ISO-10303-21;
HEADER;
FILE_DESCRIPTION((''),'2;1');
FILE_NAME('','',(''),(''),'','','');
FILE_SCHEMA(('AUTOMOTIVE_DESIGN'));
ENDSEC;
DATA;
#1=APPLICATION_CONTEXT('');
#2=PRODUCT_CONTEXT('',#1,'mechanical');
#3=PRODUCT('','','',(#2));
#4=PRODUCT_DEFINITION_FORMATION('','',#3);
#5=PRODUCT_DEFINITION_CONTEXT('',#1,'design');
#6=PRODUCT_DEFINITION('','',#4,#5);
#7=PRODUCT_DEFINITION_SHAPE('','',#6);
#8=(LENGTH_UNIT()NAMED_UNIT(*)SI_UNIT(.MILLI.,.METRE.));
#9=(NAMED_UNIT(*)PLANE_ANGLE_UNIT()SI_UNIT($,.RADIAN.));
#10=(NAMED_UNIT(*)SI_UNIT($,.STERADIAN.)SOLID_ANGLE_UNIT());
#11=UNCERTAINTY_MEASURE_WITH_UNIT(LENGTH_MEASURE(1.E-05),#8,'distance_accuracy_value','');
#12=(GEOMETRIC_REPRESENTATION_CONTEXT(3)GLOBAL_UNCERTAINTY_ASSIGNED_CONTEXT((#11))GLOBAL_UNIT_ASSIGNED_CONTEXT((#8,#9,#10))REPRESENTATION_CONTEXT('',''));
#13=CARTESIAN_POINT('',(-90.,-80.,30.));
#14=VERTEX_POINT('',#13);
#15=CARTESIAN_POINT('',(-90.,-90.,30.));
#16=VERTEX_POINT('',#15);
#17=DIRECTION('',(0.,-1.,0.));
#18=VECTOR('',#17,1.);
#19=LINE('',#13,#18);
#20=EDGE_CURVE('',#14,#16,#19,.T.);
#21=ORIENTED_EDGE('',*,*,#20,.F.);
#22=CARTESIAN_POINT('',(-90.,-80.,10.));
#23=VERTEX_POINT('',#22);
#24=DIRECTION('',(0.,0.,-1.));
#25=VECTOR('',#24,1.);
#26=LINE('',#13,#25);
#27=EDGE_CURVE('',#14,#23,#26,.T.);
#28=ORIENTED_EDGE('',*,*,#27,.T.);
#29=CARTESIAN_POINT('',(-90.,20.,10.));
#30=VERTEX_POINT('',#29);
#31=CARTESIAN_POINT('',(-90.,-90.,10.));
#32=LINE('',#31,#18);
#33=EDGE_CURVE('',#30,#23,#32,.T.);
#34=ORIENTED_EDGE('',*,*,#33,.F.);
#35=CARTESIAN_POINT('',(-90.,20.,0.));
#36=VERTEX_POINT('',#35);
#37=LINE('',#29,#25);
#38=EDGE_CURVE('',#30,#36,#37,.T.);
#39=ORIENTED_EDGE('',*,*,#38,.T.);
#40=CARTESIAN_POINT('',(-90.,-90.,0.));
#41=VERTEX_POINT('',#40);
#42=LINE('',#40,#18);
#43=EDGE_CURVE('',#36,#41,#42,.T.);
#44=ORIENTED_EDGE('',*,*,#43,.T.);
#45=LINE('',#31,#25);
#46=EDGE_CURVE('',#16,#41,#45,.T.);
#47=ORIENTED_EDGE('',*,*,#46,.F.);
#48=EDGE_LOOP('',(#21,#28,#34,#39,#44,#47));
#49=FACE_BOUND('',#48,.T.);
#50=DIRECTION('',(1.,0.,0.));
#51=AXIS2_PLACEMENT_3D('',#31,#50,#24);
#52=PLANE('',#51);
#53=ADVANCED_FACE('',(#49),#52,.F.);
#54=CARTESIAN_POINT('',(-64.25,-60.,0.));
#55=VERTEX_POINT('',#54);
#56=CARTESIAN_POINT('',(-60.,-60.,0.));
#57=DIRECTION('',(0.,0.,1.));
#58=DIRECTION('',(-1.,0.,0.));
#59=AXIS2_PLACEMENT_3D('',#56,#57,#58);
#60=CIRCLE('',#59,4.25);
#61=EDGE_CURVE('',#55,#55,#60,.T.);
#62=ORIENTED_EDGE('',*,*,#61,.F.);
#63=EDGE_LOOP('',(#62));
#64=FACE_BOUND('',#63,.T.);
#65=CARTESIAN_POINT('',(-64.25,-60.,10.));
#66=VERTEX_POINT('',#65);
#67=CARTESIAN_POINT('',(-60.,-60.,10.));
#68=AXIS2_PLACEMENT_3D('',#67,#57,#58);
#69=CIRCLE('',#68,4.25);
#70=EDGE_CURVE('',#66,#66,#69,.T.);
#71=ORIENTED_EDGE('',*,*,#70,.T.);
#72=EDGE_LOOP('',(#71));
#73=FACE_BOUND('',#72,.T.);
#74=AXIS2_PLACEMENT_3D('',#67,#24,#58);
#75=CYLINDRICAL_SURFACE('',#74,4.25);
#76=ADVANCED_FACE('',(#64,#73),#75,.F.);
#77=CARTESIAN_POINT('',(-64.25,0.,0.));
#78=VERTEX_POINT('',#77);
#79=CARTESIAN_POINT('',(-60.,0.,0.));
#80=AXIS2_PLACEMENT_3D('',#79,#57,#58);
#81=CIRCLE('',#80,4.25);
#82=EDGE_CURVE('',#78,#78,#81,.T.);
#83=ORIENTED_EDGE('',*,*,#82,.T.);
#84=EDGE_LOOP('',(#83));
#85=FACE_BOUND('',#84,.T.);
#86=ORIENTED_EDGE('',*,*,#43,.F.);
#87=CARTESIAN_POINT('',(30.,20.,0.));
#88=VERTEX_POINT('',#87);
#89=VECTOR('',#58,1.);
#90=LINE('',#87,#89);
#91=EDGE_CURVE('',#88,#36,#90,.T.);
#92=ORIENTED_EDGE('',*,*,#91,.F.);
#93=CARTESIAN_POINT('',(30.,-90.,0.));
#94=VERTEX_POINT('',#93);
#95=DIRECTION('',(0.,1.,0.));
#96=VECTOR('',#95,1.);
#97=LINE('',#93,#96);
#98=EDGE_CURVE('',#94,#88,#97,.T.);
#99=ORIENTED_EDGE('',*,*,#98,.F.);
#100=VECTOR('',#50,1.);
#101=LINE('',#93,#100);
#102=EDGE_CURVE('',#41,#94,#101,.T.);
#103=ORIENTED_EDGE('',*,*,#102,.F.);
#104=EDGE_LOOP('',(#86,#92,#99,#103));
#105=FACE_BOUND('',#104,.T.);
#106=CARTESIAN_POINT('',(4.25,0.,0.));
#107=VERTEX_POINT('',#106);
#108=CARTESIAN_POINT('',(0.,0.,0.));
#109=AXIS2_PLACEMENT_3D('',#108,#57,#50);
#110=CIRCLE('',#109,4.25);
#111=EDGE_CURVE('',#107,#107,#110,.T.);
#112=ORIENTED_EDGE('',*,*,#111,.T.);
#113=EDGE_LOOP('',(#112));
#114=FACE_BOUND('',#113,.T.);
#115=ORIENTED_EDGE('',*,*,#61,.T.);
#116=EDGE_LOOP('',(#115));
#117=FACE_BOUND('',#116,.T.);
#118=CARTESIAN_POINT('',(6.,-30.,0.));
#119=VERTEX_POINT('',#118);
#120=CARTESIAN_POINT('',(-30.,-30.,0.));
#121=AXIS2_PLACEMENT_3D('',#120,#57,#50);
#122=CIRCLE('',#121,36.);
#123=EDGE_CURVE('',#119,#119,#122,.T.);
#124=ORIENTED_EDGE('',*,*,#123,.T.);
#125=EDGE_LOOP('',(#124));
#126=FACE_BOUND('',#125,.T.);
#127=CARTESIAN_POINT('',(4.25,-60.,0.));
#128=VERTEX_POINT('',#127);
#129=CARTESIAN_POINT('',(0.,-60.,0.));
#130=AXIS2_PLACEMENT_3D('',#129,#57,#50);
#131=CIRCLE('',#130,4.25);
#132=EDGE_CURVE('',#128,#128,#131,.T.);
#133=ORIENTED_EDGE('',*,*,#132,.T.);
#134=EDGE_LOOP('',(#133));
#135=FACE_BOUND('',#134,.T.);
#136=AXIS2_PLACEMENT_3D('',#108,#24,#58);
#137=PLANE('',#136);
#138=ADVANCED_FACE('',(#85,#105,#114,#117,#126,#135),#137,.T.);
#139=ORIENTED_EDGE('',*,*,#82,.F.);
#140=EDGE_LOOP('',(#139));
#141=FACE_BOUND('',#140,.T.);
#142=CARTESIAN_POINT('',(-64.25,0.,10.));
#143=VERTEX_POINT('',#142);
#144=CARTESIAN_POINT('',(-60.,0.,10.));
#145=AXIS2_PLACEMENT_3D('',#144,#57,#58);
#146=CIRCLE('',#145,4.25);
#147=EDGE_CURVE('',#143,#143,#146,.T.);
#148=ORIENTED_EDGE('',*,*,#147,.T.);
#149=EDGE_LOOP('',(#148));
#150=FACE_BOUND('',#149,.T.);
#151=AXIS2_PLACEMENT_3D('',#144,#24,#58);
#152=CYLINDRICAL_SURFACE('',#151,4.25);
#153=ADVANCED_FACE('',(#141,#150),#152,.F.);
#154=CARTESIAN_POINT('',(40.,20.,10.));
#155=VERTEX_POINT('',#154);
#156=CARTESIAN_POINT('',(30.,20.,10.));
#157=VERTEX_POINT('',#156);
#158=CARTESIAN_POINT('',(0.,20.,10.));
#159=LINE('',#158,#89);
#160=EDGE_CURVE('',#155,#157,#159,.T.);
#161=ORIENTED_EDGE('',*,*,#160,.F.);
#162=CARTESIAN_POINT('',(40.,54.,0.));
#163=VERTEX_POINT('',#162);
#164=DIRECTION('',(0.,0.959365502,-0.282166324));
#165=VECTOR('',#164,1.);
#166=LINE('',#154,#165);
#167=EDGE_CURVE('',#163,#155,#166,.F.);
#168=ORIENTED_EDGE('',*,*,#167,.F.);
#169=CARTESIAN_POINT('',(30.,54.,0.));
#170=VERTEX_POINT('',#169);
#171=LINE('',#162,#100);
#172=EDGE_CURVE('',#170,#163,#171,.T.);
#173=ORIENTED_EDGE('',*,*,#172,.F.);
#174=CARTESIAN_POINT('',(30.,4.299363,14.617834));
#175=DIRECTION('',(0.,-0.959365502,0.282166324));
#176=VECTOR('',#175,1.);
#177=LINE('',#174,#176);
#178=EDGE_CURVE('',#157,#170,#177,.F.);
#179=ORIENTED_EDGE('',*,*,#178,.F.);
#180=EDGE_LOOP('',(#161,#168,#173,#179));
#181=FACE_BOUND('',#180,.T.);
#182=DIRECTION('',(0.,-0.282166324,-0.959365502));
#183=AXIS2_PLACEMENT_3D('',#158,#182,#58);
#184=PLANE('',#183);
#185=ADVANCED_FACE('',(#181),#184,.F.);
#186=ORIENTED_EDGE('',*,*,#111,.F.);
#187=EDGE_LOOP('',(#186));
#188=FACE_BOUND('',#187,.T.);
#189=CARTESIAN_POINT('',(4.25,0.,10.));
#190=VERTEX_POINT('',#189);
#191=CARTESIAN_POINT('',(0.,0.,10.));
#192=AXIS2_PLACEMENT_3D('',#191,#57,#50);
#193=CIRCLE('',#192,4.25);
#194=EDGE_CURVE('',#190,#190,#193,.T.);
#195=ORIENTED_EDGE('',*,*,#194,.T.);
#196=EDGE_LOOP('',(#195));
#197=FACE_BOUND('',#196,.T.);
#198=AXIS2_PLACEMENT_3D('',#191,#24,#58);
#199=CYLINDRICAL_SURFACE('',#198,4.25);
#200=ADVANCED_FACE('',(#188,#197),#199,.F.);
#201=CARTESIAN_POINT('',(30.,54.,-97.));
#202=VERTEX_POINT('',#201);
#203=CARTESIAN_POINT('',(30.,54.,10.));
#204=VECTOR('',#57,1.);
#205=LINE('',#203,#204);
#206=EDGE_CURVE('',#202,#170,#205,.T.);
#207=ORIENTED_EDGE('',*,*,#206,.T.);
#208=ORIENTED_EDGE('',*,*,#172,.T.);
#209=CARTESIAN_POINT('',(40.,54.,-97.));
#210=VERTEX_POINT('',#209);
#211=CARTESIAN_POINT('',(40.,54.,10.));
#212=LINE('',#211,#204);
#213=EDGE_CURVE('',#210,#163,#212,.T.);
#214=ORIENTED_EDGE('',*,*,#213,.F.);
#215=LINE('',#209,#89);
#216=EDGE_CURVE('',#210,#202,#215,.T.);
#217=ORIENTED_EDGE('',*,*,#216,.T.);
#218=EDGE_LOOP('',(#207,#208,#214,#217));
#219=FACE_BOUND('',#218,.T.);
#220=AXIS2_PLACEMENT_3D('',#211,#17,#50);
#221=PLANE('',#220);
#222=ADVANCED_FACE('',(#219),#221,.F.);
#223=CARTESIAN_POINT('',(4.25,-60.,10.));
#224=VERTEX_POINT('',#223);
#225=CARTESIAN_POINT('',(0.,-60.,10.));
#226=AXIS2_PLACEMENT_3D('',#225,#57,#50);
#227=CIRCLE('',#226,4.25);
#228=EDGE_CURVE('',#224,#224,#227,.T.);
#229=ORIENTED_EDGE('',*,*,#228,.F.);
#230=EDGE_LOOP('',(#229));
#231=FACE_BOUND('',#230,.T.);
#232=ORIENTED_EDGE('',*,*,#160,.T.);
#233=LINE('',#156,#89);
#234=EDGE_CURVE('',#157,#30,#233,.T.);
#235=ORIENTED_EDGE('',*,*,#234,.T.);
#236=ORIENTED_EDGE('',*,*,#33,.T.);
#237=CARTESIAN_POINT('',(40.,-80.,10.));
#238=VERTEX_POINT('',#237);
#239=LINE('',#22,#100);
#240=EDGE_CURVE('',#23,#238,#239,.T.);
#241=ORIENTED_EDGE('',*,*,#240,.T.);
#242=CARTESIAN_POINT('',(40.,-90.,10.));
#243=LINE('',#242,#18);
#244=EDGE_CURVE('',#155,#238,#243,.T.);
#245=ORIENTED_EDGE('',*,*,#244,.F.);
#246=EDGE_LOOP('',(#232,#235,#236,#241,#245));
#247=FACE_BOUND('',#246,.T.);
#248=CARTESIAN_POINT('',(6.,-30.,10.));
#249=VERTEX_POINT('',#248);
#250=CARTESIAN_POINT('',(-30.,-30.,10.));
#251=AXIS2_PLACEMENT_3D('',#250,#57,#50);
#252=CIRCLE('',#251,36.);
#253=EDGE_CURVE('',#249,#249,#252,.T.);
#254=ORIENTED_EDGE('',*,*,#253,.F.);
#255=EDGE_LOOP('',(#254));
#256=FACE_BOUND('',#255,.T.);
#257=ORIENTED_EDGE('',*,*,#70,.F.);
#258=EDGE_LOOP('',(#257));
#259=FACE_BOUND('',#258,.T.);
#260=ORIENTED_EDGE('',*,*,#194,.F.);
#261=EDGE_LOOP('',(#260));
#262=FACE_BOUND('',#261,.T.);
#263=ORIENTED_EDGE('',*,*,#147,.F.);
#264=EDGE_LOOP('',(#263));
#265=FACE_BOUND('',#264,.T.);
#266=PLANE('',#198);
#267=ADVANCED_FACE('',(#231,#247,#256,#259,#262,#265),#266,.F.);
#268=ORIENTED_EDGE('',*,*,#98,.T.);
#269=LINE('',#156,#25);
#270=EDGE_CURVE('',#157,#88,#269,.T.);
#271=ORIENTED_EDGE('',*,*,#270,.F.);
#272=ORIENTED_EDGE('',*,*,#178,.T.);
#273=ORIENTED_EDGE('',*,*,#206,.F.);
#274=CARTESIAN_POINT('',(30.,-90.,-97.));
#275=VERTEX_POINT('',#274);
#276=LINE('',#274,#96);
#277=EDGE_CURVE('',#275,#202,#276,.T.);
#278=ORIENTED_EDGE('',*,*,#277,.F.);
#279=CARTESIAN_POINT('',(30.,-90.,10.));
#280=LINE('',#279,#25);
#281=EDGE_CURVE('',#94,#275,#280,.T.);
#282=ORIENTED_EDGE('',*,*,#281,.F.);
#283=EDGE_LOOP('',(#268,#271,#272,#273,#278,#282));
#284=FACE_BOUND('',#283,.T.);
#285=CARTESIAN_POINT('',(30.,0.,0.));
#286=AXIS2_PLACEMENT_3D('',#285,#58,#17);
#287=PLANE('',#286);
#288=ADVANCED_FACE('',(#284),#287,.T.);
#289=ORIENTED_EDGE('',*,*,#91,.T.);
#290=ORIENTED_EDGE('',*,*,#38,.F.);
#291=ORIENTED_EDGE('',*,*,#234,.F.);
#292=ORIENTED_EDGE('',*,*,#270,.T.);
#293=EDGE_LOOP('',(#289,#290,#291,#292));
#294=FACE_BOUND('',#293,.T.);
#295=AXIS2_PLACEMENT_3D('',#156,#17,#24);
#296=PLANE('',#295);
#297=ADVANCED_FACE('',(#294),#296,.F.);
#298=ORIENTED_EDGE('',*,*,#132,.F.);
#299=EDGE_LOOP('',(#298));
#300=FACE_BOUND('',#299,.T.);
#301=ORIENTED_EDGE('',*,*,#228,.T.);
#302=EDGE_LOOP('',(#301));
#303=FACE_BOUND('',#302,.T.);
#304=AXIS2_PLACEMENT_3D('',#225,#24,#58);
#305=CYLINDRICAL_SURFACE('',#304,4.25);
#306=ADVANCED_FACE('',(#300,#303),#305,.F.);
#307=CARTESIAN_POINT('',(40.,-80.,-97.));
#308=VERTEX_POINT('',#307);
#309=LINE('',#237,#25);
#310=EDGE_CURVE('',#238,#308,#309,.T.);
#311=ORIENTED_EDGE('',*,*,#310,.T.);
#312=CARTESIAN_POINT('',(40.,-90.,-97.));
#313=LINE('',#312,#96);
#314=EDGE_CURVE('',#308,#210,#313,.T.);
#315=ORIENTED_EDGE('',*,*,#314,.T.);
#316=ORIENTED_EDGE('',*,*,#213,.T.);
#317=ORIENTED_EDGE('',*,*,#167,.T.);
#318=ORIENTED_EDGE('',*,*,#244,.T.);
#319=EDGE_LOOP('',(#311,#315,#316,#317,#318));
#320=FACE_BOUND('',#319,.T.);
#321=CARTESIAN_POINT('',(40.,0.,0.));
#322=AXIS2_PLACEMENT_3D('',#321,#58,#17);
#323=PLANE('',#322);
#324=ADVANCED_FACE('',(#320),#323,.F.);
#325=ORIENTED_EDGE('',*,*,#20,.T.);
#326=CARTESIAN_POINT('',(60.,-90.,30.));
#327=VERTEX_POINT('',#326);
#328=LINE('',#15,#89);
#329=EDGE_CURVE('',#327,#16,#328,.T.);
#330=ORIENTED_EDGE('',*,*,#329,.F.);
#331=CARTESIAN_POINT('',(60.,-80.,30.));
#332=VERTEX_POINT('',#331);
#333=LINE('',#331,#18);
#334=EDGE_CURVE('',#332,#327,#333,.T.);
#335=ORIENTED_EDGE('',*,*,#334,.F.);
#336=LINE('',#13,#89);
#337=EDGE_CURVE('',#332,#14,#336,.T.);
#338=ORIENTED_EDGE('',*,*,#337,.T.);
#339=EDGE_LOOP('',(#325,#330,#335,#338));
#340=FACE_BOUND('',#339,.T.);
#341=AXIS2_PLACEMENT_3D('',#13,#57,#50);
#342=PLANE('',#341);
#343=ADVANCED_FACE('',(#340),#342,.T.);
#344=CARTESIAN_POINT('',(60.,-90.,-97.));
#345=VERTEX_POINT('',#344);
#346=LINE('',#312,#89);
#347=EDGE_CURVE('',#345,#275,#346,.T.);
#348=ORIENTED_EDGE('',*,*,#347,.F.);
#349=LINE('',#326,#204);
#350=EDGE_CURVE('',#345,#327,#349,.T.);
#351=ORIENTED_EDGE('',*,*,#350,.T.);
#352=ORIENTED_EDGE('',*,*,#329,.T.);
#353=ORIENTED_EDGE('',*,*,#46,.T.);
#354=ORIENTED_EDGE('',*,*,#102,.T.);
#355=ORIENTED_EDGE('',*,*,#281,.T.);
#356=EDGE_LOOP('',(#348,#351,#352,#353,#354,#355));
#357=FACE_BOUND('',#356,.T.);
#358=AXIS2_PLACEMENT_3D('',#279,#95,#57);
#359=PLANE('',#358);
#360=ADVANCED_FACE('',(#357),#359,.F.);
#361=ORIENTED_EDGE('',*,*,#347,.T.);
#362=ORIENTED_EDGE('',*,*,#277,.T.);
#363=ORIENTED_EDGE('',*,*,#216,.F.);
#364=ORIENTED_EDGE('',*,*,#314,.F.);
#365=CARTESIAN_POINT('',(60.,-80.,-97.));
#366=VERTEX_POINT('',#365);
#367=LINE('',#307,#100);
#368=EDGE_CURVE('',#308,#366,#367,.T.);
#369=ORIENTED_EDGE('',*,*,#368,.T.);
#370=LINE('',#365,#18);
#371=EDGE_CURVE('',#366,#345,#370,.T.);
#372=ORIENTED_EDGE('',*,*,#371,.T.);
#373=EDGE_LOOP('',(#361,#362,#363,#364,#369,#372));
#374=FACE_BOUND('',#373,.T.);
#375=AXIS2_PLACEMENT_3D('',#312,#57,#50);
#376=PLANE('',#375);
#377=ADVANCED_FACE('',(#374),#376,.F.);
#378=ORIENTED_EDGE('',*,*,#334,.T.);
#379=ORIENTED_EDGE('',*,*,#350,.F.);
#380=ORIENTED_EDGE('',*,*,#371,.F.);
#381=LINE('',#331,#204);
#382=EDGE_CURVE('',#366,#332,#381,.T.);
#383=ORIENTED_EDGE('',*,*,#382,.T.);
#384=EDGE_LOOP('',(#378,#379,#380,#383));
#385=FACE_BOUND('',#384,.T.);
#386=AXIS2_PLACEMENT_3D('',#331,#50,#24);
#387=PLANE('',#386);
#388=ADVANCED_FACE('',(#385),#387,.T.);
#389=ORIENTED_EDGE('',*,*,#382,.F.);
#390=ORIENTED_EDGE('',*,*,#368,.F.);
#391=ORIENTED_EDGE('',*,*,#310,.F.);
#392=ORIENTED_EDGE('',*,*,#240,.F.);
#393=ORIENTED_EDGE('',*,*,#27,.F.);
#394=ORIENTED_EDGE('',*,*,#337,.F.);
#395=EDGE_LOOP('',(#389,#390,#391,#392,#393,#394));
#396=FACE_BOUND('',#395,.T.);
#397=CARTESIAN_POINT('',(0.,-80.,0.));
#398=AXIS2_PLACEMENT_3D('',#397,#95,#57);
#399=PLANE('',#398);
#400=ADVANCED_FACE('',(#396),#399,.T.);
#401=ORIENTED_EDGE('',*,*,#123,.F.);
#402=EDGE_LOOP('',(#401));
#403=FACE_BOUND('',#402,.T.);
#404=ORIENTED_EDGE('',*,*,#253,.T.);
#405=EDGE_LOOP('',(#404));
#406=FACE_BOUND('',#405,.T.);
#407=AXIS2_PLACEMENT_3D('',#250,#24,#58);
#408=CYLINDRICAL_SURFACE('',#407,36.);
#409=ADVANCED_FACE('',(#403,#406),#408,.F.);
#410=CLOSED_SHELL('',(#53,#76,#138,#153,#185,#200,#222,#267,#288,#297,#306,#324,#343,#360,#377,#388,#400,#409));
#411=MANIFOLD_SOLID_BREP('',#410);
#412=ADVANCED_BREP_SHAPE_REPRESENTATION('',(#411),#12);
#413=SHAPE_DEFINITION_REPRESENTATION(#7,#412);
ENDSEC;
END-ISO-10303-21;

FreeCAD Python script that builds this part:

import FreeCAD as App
import Part
import Sketcher
from FreeCAD import Vector
Q = App.Units.Quantity


def edges_at(feature, points):
    """Names of the edges that pass closest to the given points."""
    edges = feature.Shape.Edges
    near = lambda p: min(range(len(edges)), key=lambda i: edges[i].distToShape(Part.Vertex(*p))[0])
    return sorted({f"Edge{near(p) + 1}" for p in points})


def add_polygon(sketch, points):
    """Adds a closed chain of lines whose ends are joined by coincident constraints."""
    first, n = sketch.GeometryCount, len(points)
    for a, b in zip(points, points[1:] + points[:1]):
        sketch.addGeometry(Part.LineSegment(App.Vector(*a, 0), App.Vector(*b, 0)), False)
    for i in range(n):
        sketch.addConstraint(Sketcher.Constraint("Coincident", first + i, 2, first + (i + 1) % n, 1))

doc = App.newDocument("Part")
body = doc.addObject("PartDesign::Body", "Body")

sketch1 = body.newObject("Sketcher::SketchObject", "Sketch")
sketch1.AttachmentSupport = (doc.getObject("XY_Plane"), [""])
sketch1.MapMode = "FlatFace"
add_polygon(sketch1, [(-90, 20), (-90, -90), (30, -90), (30, 20)])
sketch1.addGeometry(Part.Circle(Vector(-60, -60, 0), Vector(0, 0, 1), 4.2), False)
sketch1.addGeometry(Part.Circle(Vector(0, -60, 0), Vector(0, 0, 1), 4.2), False)
sketch1.addGeometry(Part.Circle(Vector(-60, 0, 0), Vector(0, 0, 1), 4.2), False)
sketch1.addGeometry(Part.Circle(Vector(-30, -30, 0), Vector(0, 0, 1), 36), False)
sketch1.addGeometry(Part.Circle(Vector(0, 0, 0), Vector(0, 0, 1), 4.2), False)
sketch1.addConstraint(Sketcher.Constraint("Vertical", 0))
sketch1.addConstraint(Sketcher.Constraint("Horizontal", 1))
sketch1.addConstraint(Sketcher.Constraint("Vertical", 2))
sketch1.addConstraint(Sketcher.Constraint("Horizontal", 3))
sketch1.addConstraint(Sketcher.Constraint("Coincident", 8, 3, -1, 1))
sketch1.addConstraint(Sketcher.Constraint("Equal", 4, 5))
sketch1.addConstraint(Sketcher.Constraint("Equal", 5, 6))
sketch1.addConstraint(Sketcher.Constraint("Equal", 6, 8))
sketch1.addConstraint(Sketcher.Constraint("PointOnObject", 5, 3, -2))
sketch1.addConstraint(Sketcher.Constraint("PointOnObject", 6, 3, -1))
sketch1.addConstraint(Sketcher.Constraint("Horizontal", 4, 3, 5, 3))
sketch1.addConstraint(Sketcher.Constraint("Vertical", 4, 3, 6, 3))
sketch1.addConstraint(Sketcher.Constraint("Diameter", 7, Q("72 mm")))
sketch1.addConstraint(Sketcher.Constraint("Diameter", 4, Q("8.5 mm")))
sketch1.addConstraint(Sketcher.Constraint("DistanceX", 1, 1, 1, 2, Q("120 mm")))
sketch1.addConstraint(Sketcher.Constraint("DistanceY", 0, 2, 0, 1, Q("110 mm")))
sketch1.addConstraint(Sketcher.Constraint("DistanceX", 4, 3, -1, 1, Q("60 mm")))
sketch1.addConstraint(Sketcher.Constraint("DistanceY", 4, 3, -1, 1, Q("60 mm")))
sketch1.addConstraint(Sketcher.Constraint("DistanceX", 7, 3, -1, 1, Q("30 mm")))
sketch1.addConstraint(Sketcher.Constraint("DistanceY", 7, 3, -1, 1, Q("30 mm")))
sketch1.addConstraint(Sketcher.Constraint("DistanceX", 0, 2, -1, 1, Q("90 mm")))
sketch1.addConstraint(Sketcher.Constraint("DistanceY", 0, 2, -1, 1, Q("90 mm")))
pad1 = body.newObject("PartDesign::Pad", "Pad")
pad1.Profile = sketch1
pad1.Length = 10

sketch2 = body.newObject("Sketcher::SketchObject", "Sketch001")
sketch2.AttachmentSupport = (doc.getObject("YZ_Plane"), [""])
sketch2.MapMode = "FlatFace"
sketch2.AttachmentOffset = App.Placement(Vector(0, 0, 30), App.Rotation())
add_polygon(sketch2, [(54, 10), (-90, 10), (-90, -97), (54, -97)])
sketch2.addConstraint(Sketcher.Constraint("Horizontal", 0))
sketch2.addConstraint(Sketcher.Constraint("Vertical", 1))
sketch2.addConstraint(Sketcher.Constraint("Horizontal", 2))
sketch2.addConstraint(Sketcher.Constraint("Vertical", 3))
sketch2.addConstraint(Sketcher.Constraint("DistanceX", 0, 2, 0, 1, Q("144 mm")))
sketch2.addConstraint(Sketcher.Constraint("DistanceY", 1, 2, 1, 1, Q("107 mm")))
sketch2.addConstraint(Sketcher.Constraint("DistanceX", 0, 2, -1, 1, Q("90 mm")))
sketch2.addConstraint(Sketcher.Constraint("DistanceY", -1, 1, 0, 2, Q("10 mm")))
pad2 = body.newObject("PartDesign::Pad", "Pad001")
pad2.Profile = sketch2
pad2.Length = 10
doc.recompute()

chamfer = body.newObject("PartDesign::Chamfer", "Chamfer")
chamfer.Base = (pad2, edges_at(pad2, [(35, 54, 10)]))
chamfer.ChamferType = "Two distances"
chamfer.Size = 10
chamfer.Size2 = 34

sketch3 = body.newObject("Sketcher::SketchObject", "Sketch002")
sketch3.AttachmentSupport = (doc.getObject("XZ_Plane"), [""])
sketch3.MapMode = "FlatFace"
sketch3.AttachmentOffset = App.Placement(Vector(0, 0, 90), App.Rotation())
add_polygon(sketch3, [(-90, 30), (-90, 10), (40, 10), (40, -97), (60, -97), (60, 30)])
sketch3.addConstraint(Sketcher.Constraint("Vertical", 0))
sketch3.addConstraint(Sketcher.Constraint("Horizontal", 1))
sketch3.addConstraint(Sketcher.Constraint("Vertical", 2))
sketch3.addConstraint(Sketcher.Constraint("Horizontal", 3))
sketch3.addConstraint(Sketcher.Constraint("Vertical", 4))
sketch3.addConstraint(Sketcher.Constraint("Horizontal", 5))
sketch3.addConstraint(Sketcher.Constraint("Equal", 3, 0))
sketch3.addConstraint(Sketcher.Constraint("DistanceX", 1, 1, 1, 2, Q("130 mm")))
sketch3.addConstraint(Sketcher.Constraint("DistanceX", 3, 1, 3, 2, Q("20 mm")))
sketch3.addConstraint(Sketcher.Constraint("DistanceY", 2, 2, 2, 1, Q("107 mm")))
sketch3.addConstraint(Sketcher.Constraint("DistanceX", 0, 2, -1, 1, Q("90 mm")))
sketch3.addConstraint(Sketcher.Constraint("DistanceY", -1, 1, 0, 2, Q("10 mm")))
pad3 = body.newObject("PartDesign::Pad", "Pad002")
pad3.Profile = sketch3
pad3.Length = 10
pad3.Reversed = True

doc.recompute()
